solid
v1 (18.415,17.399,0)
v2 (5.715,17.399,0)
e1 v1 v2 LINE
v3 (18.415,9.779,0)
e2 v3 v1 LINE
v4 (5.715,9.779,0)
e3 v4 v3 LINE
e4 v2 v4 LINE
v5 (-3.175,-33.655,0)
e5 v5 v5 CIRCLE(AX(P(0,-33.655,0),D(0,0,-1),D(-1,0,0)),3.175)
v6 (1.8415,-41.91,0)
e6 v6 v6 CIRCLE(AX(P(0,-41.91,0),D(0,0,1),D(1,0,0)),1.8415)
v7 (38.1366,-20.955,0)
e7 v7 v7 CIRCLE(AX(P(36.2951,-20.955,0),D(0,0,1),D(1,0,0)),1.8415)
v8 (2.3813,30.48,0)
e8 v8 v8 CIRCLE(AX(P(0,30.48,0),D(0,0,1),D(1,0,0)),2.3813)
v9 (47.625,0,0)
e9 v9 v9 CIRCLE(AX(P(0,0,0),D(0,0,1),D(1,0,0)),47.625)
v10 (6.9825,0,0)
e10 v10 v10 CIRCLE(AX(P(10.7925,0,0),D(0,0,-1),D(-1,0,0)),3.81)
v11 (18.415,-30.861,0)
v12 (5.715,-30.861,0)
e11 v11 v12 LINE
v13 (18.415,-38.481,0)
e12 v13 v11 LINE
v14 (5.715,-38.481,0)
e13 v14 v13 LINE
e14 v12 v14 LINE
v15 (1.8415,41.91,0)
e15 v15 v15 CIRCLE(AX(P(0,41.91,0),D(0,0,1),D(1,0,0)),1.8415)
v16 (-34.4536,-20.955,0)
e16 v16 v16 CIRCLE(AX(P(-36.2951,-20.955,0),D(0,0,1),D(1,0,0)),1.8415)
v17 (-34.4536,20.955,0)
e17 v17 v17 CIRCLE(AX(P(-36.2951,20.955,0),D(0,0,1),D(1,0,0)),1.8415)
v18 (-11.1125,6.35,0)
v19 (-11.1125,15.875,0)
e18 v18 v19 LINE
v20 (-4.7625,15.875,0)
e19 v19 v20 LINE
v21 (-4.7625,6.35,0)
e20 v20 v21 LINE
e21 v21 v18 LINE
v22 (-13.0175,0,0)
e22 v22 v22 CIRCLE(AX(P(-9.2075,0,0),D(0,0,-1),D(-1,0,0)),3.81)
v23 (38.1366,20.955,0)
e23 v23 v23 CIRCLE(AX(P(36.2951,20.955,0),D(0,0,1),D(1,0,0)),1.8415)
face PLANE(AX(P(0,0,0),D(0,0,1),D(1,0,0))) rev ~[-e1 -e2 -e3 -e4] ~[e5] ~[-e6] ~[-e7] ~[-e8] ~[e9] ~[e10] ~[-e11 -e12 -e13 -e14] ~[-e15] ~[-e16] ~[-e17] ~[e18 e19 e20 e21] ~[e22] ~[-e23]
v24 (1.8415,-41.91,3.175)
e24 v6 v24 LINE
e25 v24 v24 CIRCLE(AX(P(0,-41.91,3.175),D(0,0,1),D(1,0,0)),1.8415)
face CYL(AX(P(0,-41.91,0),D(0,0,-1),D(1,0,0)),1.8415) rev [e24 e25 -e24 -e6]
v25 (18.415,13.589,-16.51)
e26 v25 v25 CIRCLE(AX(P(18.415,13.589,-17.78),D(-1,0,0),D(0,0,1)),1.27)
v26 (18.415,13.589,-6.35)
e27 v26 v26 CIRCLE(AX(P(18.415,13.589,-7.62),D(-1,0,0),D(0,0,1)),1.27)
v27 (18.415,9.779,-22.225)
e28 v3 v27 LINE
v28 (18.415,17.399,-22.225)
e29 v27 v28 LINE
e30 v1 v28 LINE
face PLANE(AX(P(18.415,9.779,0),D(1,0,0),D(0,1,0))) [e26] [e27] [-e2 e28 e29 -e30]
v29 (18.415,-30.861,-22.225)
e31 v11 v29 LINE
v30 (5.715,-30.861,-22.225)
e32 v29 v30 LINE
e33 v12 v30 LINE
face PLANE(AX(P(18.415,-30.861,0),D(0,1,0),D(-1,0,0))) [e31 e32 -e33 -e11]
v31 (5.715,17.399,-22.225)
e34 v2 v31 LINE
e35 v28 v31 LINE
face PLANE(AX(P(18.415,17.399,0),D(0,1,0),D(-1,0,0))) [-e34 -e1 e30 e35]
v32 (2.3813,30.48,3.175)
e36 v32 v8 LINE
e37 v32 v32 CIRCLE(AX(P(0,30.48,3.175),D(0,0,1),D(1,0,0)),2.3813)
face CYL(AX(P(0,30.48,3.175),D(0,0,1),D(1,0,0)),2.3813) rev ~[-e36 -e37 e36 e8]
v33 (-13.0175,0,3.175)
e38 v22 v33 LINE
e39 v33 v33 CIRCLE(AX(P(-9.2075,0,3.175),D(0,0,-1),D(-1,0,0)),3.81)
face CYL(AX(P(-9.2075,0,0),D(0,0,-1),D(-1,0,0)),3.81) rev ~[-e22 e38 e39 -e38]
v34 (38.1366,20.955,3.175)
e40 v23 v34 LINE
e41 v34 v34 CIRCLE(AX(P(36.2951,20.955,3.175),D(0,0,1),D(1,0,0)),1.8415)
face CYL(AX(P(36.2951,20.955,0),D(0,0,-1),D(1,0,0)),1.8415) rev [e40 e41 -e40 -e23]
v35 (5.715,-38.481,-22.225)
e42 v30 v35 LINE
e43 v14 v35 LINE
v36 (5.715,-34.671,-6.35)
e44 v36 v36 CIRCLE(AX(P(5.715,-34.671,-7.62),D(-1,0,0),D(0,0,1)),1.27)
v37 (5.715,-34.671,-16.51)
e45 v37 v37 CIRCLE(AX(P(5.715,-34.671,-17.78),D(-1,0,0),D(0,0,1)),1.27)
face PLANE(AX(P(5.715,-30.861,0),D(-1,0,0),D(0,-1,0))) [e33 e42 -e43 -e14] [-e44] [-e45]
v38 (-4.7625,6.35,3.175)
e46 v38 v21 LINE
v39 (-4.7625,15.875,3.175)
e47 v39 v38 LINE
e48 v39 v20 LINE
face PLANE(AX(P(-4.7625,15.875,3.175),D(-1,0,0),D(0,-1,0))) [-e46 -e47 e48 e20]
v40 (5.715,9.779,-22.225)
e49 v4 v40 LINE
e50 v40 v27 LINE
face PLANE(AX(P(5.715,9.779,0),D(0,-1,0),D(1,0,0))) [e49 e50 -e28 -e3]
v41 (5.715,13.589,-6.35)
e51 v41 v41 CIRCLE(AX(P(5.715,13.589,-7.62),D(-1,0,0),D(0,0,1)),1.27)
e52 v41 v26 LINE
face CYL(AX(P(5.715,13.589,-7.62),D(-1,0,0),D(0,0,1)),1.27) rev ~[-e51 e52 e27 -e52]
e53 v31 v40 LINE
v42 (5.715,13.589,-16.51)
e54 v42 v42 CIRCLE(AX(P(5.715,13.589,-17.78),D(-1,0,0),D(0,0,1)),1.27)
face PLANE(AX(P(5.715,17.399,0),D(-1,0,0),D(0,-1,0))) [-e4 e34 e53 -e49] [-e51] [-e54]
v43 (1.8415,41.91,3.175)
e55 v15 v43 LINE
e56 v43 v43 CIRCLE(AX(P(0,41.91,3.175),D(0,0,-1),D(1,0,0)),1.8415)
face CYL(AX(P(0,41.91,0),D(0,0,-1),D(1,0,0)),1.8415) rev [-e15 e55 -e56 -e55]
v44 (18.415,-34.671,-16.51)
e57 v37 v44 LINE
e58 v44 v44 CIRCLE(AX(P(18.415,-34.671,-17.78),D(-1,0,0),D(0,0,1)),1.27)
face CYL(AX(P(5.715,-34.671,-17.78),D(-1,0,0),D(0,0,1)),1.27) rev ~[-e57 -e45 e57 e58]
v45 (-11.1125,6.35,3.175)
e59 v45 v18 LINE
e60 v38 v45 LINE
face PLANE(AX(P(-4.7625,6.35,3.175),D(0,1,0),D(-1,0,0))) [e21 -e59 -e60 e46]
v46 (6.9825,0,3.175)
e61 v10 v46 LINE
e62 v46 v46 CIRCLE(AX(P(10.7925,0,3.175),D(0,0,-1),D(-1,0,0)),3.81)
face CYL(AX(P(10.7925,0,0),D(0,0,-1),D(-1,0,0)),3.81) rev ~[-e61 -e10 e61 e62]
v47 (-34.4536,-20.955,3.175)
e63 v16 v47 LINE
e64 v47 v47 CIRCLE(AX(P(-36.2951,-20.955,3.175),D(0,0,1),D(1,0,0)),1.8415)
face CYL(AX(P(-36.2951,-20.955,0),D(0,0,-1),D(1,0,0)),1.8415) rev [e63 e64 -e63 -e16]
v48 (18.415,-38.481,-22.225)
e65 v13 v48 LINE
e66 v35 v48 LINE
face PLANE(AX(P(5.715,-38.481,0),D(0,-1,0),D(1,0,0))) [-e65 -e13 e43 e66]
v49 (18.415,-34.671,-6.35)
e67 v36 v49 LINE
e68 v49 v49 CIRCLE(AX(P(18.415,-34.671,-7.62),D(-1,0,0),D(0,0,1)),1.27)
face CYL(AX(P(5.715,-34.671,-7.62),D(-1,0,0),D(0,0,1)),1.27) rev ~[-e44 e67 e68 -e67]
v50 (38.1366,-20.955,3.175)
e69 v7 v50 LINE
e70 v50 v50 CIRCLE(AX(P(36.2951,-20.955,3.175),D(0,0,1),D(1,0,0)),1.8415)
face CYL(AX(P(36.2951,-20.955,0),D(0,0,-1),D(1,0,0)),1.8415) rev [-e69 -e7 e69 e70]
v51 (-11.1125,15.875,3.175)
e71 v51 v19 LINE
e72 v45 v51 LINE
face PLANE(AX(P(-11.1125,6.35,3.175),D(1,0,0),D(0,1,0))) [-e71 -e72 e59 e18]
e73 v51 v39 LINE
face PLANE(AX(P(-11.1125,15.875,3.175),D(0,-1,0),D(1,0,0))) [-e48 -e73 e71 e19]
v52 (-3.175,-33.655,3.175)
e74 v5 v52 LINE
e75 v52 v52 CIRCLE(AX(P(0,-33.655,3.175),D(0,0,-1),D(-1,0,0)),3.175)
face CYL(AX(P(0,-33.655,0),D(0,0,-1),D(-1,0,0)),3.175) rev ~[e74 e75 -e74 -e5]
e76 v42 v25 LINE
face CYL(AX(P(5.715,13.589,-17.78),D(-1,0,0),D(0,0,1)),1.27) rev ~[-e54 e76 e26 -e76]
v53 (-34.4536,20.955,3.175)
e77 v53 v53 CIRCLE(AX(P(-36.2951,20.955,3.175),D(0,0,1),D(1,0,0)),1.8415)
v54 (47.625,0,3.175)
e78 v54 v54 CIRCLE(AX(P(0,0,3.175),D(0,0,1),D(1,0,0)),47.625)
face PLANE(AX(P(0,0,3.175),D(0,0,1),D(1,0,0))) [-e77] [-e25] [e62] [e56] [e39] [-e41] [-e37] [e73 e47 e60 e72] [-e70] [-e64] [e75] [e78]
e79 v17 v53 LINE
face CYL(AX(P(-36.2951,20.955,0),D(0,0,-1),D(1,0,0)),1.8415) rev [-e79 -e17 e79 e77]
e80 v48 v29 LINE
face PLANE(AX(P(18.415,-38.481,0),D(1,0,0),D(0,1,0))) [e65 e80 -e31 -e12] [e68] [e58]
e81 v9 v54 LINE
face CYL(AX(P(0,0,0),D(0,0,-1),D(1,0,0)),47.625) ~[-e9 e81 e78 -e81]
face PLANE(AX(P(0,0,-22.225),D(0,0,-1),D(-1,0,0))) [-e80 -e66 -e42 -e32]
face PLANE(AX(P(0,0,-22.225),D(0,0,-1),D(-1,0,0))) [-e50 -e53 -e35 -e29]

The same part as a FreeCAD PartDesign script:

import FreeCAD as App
import Part
import Sketcher

V = App.Vector
Q = App.Units.Quantity

doc = App.newDocument("Part")
body = doc.addObject("PartDesign::Body", "Body")

# Sketch on XY plane
sketch1 = doc.addObject("Sketcher::SketchObject", "Sketch")
body.addObject(sketch1)
sketch1.AttachmentSupport = (doc.XY_Plane, [""])
sketch1.MapMode = "FlatFace"
sketch1.addGeometry(Part.Circle(V(0, 0, 0), V(0, 0, 1), 47.625), False)
sketch1.addGeometry(Part.Circle(V(-36.2951, -20.955, 0), V(0, 0, 1), 1.8415), False)
sketch1.addGeometry(Part.Circle(V(0, -41.91, 0), V(0, 0, 1), 1.8415), False)
sketch1.addGeometry(Part.Circle(V(36.2951, -20.955, 0), V(0, 0, 1), 1.8415), False)
sketch1.addGeometry(Part.Circle(V(-36.2951, 20.955, 0), V(0, 0, 1), 1.8415), False)
sketch1.addGeometry(Part.Circle(V(36.2951, 20.955, 0), V(0, 0, 1), 1.8415), False)
sketch1.addGeometry(Part.Circle(V(0, 41.91, 0), V(0, 0, 1), 1.8415), False)
sketch1.addConstraint(Sketcher.Constraint("Coincident", 0, 3, -1, 1))
sketch1.addConstraint(Sketcher.Constraint("Equal", 1, 2))
sketch1.addConstraint(Sketcher.Constraint("Equal", 2, 3))
sketch1.addConstraint(Sketcher.Constraint("Equal", 3, 4))
sketch1.addConstraint(Sketcher.Constraint("Equal", 4, 5))
sketch1.addConstraint(Sketcher.Constraint("Equal", 5, 6))
sketch1.addConstraint(Sketcher.Constraint("Symmetric", 3, 3, 4, 3, -1, 1))
sketch1.addConstraint(Sketcher.Constraint("Symmetric", 1, 3, 5, 3, -1, 1))
sketch1.addConstraint(Sketcher.Constraint("Symmetric", 2, 3, 6, 3, -1, 1))
sketch1.addConstraint(Sketcher.Constraint("Symmetric", 1, 3, 3, 3, -2))
sketch1.addConstraint(Sketcher.Constraint("PointOnObject", 2, 3, -2))
sketch1.addConstraint(Sketcher.Constraint("Diameter", 0, Q("3.75 in")))
sketch1.addConstraint(Sketcher.Constraint("Diameter", 1, Q("0.145 in")))
sketch1.addConstraint(Sketcher.Constraint("DistanceY", 2, 3, -1, 1, Q("1.65 in")))
sketch1.addConstraint(Sketcher.Constraint("DistanceY", 1, 3, 4, 3, Q("1.65 in")))
sketch1.addConstraint(Sketcher.Constraint("DistanceX", 1, 3, -1, 1, 36.295))
pad1 = doc.addObject("PartDesign::Pad", "Pad")
body.addObject(pad1)
pad1.Profile = sketch1
pad1.Length = Q("0.125 in")

# Sketch on XY plane
sketch2 = doc.addObject("Sketcher::SketchObject", "Sketch001")
body.addObject(sketch2)
sketch2.AttachmentSupport = (doc.XY_Plane, [""])
sketch2.MapMode = "FlatFace"
sketch2.addGeometry(Part.LineSegment(V(5.715, 17.399, 0), V(18.415, 17.399, 0)), False)
sketch2.addGeometry(Part.LineSegment(V(18.415, 17.399, 0), V(18.415, 9.779, 0)), False)
sketch2.addGeometry(Part.LineSegment(V(18.415, 9.779, 0), V(5.715, 9.779, 0)), False)
sketch2.addGeometry(Part.LineSegment(V(5.715, 9.779, 0), V(5.715, 17.399, 0)), False)
sketch2.addGeometry(Part.LineSegment(V(5.715, -30.861, 0), V(18.415, -30.861, 0)), False)
sketch2.addGeometry(Part.LineSegment(V(18.415, -30.861, 0), V(18.415, -38.481, 0)), False)
sketch2.addGeometry(Part.LineSegment(V(18.415, -38.481, 0), V(5.715, -38.481, 0)), False)
sketch2.addGeometry(Part.LineSegment(V(5.715, -38.481, 0), V(5.715, -30.861, 0)), False)
sketch2.addConstraint(Sketcher.Constraint("Coincident", 0, 2, 1, 1))
sketch2.addConstraint(Sketcher.Constraint("Coincident", 1, 2, 2, 1))
sketch2.addConstraint(Sketcher.Constraint("Coincident", 2, 2, 3, 1))
sketch2.addConstraint(Sketcher.Constraint("Coincident", 3, 2, 0, 1))
sketch2.addConstraint(Sketcher.Constraint("Coincident", 4, 2, 5, 1))
sketch2.addConstraint(Sketcher.Constraint("Coincident", 5, 2, 6, 1))
sketch2.addConstraint(Sketcher.Constraint("Coincident", 6, 2, 7, 1))
sketch2.addConstraint(Sketcher.Constraint("Coincident", 7, 2, 4, 1))
sketch2.addConstraint(Sketcher.Constraint("Horizontal", 0))
sketch2.addConstraint(Sketcher.Constraint("Vertical", 1))
sketch2.addConstraint(Sketcher.Constraint("Horizontal", 2))
sketch2.addConstraint(Sketcher.Constraint("Vertical", 3))
sketch2.addConstraint(Sketcher.Constraint("Horizontal", 4))
sketch2.addConstraint(Sketcher.Constraint("Vertical", 5))
sketch2.addConstraint(Sketcher.Constraint("Horizontal", 6))
sketch2.addConstraint(Sketcher.Constraint("Vertical", 7))
sketch2.addConstraint(Sketcher.Constraint("Vertical", 1, 2, 4, 2))
sketch2.addConstraint(Sketcher.Constraint("Vertical", 3, 2, 6, 2))
sketch2.addConstraint(Sketcher.Constraint("Equal", 3, 5))
sketch2.addConstraint(Sketcher.Constraint("DistanceX", 0, 1, 0, 2, Q("0.5 in")))
sketch2.addConstraint(Sketcher.Constraint("DistanceY", 1, 2, 1, 1, Q("0.3 in")))
sketch2.addConstraint(Sketcher.Constraint("DistanceY", 4, 2, 1, 2, Q("1.6 in")))
sketch2.addConstraint(Sketcher.Constraint("DistanceY", -1, 1, 1, 2, Q("0.385 in")))
sketch2.addConstraint(Sketcher.Constraint("DistanceX", -1, 1, 2, 2, Q("0.225 in")))
pad2 = doc.addObject("PartDesign::Pad", "Pad001")
body.addObject(pad2)
pad2.Profile = sketch2
pad2.Length = Q("0.875 in")
pad2.Reversed = True

# Sketch on XY plane
sketch3 = doc.addObject("Sketcher::SketchObject", "Sketch002")
body.addObject(sketch3)
sketch3.AttachmentSupport = (doc.XY_Plane, [""])
sketch3.MapMode = "FlatFace"
sketch3.AttachmentOffset = App.Placement(V(0, 0, 0.125 * 25.4), App.Rotation())
sketch3.addGeometry(Part.LineSegment(V(-4.7625, 15.875, 0), V(-11.1125, 15.875, 0)), False)
sketch3.addGeometry(Part.LineSegment(V(-11.1125, 15.875, 0), V(-11.1125, 6.35, 0)), False)
sketch3.addGeometry(Part.LineSegment(V(-11.1125, 6.35, 0), V(-4.7625, 6.35, 0)), False)
sketch3.addGeometry(Part.LineSegment(V(-4.7625, 6.35, 0), V(-4.7625, 15.875, 0)), False)
sketch3.addConstraint(Sketcher.Constraint("Coincident", 0, 2, 1, 1))
sketch3.addConstraint(Sketcher.Constraint("Coincident", 1, 2, 2, 1))
sketch3.addConstraint(Sketcher.Constraint("Coincident", 2, 2, 3, 1))
sketch3.addConstraint(Sketcher.Constraint("Coincident", 3, 2, 0, 1))
sketch3.addConstraint(Sketcher.Constraint("Horizontal", 0))
sketch3.addConstraint(Sketcher.Constraint("Vertical", 1))
sketch3.addConstraint(Sketcher.Constraint("Horizontal", 2))
sketch3.addConstraint(Sketcher.Constraint("Vertical", 3))
sketch3.addConstraint(Sketcher.Constraint("DistanceX", 0, 2, 0, 1, Q("0.25 in")))
sketch3.addConstraint(Sketcher.Constraint("DistanceY", 1, 2, 1, 1, Q("0.375 in")))
sketch3.addConstraint(Sketcher.Constraint("DistanceY", -1, 1, 1, 2, Q("0.25 in")))
sketch3.addConstraint(Sketcher.Constraint("DistanceX", 2, 2, -1, 1, Q("0.1875 in")))
pocket1 = doc.addObject("PartDesign::Pocket", "Pocket")
body.addObject(pocket1)
pocket1.Profile = sketch3
pocket1.Length = Q("0.75 in")

# Sketch on YZ plane
sketch4 = doc.addObject("Sketcher::SketchObject", "Sketch003")
body.addObject(sketch4)
sketch4.AttachmentSupport = (doc.YZ_Plane, [""])
sketch4.MapMode = "FlatFace"
sketch4.AttachmentOffset = App.Placement(V(0, 0, 0.225 * 25.4), App.Rotation())
sketch4.addGeometry(Part.Circle(V(-34.671, -17.78, 0), V(0, 0, 1), 1.27), False)
sketch4.addGeometry(Part.Circle(V(-34.671, -7.62, 0), V(0, 0, 1), 1.27), False)
sketch4.addGeometry(Part.Circle(V(13.589, -17.78, 0), V(0, 0, 1), 1.27), False)
sketch4.addGeometry(Part.Circle(V(13.589, -7.62, 0), V(0, 0, 1), 1.27), False)
sketch4.addConstraint(Sketcher.Constraint("Equal", 0, 1))
sketch4.addConstraint(Sketcher.Constraint("Equal", 1, 2))
sketch4.addConstraint(Sketcher.Constraint("Equal", 2, 3))
sketch4.addConstraint(Sketcher.Constraint("Horizontal", 0, 3, 2, 3))
sketch4.addConstraint(Sketcher.Constraint("Horizontal", 1, 3, 3, 3))
sketch4.addConstraint(Sketcher.Constraint("Vertical", 0, 3, 1, 3))
sketch4.addConstraint(Sketcher.Constraint("Vertical", 2, 3, 3, 3))
sketch4.addConstraint(Sketcher.Constraint("Diameter", 0, Q("0.1 in")))
sketch4.addConstraint(Sketcher.Constraint("DistanceY", 0, 3, 1, 3, Q("0.4 in")))
sketch4.addConstraint(Sketcher.Constraint("DistanceY", 0, 3, -1, 1, Q("0.7 in")))
sketch4.addConstraint(Sketcher.Constraint("DistanceX", 0, 3, 2, 3, Q("1.9 in")))
sketch4.addConstraint(Sketcher.Constraint("DistanceX", 0, 3, -1, 1, Q("1.365 in")))
pocket2 = doc.addObject("PartDesign::Pocket", "Pocket001")
body.addObject(pocket2)
pocket2.Profile = sketch4
pocket2.Length = Q("0.75 in")
pocket2.Reversed = True

# Sketch on XY plane
sketch5 = doc.addObject("Sketcher::SketchObject", "Sketch004")
body.addObject(sketch5)
sketch5.AttachmentSupport = (doc.XY_Plane, [""])
sketch5.MapMode = "FlatFace"
sketch5.addGeometry(Part.Circle(V(-9.2075, 0, 0), V(0, 0, 1), 3.81), False)
sketch5.addGeometry(Part.Circle(V(10.7925, 0, 0), V(0, 0, 1), 3.81), False)
sketch5.addConstraint(Sketcher.Constraint("Equal", 0, 1))
sketch5.addConstraint(Sketcher.Constraint("PointOnObject", 0, 3, -1))
sketch5.addConstraint(Sketcher.Constraint("PointOnObject", 1, 3, -1))
sketch5.addConstraint(Sketcher.Constraint("Diameter", 0, Q("0.3 in")))
sketch5.addConstraint(Sketcher.Constraint("DistanceX", 0, 3, 1, 3, Q("0.7874 in")))
sketch5.addConstraint(Sketcher.Constraint("DistanceX", 0, 3, -1, 1, Q("0.3625 in")))
pocket3 = doc.addObject("PartDesign::Pocket", "Pocket002")
body.addObject(pocket3)
pocket3.Profile = sketch5
pocket3.Length = Q("1 in")
pocket3.Reversed = True

# Sketch on XY plane
sketch6 = doc.addObject("Sketcher::SketchObject", "Sketch005")
body.addObject(sketch6)
sketch6.AttachmentSupport = (doc.XY_Plane, [""])
sketch6.MapMode = "FlatFace"
sketch6.AttachmentOffset = App.Placement(V(0, 0, 0.125 * 25.4), App.Rotation())
sketch6.addGeometry(Part.Circle(V(0, 30.48, 0), V(0, 0, 1), 2.3813), False)
sketch6.addConstraint(Sketcher.Constraint("PointOnObject", 0, 3, -2))
sketch6.addConstraint(Sketcher.Constraint("Diameter", 0, Q("0.1875 in")))
sketch6.addConstraint(Sketcher.Constraint("DistanceY", -1, 1, 0, 3, Q("1.2 in")))
pocket4 = doc.addObject("PartDesign::Pocket", "Pocket003")
body.addObject(pocket4)
pocket4.Profile = sketch6
pocket4.Type = "ThroughAll"

# Sketch on XY plane
sketch7 = doc.addObject("Sketcher::SketchObject", "Sketch006")
body.addObject(sketch7)
sketch7.AttachmentSupport = (doc.XY_Plane, [""])
sketch7.MapMode = "FlatFace"
sketch7.addGeometry(Part.Circle(V(0, -33.655, 0), V(0, 0, 1), 3.175), False)
sketch7.addConstraint(Sketcher.Constraint("PointOnObject", 0, 3, -2))
sketch7.addConstraint(Sketcher.Constraint("Diameter", 0, Q("0.25 in")))
sketch7.addConstraint(Sketcher.Constraint("DistanceY", 0, 3, -1, 1, Q("1.325 in")))
pocket5 = doc.addObject("PartDesign::Pocket", "Pocket004")
body.addObject(pocket5)
pocket5.Profile = sketch7
pocket5.Length = Q("1 in")
pocket5.Reversed = True

doc.recompute()
